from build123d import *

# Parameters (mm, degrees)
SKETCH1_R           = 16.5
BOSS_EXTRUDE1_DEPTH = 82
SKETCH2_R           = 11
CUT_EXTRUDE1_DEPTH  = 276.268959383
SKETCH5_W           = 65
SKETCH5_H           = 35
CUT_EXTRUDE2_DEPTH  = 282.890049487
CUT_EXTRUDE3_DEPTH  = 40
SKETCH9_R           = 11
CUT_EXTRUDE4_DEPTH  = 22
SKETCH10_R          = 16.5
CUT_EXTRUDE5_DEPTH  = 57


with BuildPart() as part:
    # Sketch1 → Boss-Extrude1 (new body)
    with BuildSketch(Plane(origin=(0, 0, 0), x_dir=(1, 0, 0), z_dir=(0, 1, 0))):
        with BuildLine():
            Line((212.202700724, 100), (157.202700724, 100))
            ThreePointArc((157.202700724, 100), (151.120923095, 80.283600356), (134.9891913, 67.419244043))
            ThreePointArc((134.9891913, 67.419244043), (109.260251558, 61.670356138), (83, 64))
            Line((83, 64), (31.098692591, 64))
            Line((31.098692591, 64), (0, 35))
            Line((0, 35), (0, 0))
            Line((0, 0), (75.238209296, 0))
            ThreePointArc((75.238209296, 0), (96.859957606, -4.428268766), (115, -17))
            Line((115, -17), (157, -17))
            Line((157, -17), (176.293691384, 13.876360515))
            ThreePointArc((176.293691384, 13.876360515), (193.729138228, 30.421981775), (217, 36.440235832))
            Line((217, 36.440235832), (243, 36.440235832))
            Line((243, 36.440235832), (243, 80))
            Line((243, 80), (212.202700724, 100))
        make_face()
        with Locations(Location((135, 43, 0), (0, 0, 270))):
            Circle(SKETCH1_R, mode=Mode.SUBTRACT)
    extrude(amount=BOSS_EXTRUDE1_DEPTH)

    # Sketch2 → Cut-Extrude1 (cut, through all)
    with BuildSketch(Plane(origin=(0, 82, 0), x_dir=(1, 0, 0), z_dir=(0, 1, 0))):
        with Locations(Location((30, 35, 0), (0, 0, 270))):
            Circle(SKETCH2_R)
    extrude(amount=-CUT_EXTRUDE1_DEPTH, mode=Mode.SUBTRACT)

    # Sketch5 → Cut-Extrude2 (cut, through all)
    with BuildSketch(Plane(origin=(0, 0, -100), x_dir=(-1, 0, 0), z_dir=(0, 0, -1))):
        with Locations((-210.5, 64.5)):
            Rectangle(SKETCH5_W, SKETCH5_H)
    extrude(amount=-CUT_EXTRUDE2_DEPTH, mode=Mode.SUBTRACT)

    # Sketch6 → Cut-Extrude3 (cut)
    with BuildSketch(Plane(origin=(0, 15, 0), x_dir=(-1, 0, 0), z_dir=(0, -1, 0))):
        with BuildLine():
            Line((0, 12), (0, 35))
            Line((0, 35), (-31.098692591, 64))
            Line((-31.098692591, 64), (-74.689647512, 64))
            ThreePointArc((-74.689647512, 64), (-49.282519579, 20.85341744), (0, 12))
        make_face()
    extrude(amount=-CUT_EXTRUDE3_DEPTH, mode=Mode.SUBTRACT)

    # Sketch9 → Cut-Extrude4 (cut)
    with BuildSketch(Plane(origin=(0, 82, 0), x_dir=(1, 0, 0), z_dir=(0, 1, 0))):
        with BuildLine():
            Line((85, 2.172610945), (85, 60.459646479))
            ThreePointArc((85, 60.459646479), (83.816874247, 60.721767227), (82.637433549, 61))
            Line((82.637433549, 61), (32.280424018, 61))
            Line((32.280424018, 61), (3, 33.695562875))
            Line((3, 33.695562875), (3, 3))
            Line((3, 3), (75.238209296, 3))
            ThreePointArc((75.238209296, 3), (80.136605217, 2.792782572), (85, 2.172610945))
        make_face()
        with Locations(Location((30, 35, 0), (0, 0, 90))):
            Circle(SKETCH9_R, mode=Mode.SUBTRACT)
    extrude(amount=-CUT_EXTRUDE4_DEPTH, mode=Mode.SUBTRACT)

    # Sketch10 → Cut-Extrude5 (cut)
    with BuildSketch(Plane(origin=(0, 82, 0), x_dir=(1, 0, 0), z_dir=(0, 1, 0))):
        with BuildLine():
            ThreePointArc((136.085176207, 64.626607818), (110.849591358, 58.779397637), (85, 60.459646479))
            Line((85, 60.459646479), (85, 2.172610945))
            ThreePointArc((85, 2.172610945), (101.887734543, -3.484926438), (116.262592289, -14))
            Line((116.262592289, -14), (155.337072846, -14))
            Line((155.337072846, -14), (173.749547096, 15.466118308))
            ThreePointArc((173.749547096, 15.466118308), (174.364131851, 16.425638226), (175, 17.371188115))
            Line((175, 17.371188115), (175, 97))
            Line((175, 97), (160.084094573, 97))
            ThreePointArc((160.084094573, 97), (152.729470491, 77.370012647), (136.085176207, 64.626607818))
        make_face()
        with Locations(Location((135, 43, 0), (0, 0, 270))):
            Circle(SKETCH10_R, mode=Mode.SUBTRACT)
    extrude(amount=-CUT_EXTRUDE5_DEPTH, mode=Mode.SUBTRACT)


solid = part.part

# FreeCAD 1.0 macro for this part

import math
import FreeCAD as App
import Part
import Sketcher
Q = App.Units.Quantity


def add_polygon(sketch, points):
    """Adds a closed chain of lines whose ends are joined by coincident constraints."""
    first, n = sketch.GeometryCount, len(points)
    for a, b in zip(points, points[1:] + points[:1]):
        sketch.addGeometry(Part.LineSegment(App.Vector(*a, 0), App.Vector(*b, 0)), False)
    for i in range(n):
        sketch.addConstraint(Sketcher.Constraint("Coincident", first + i, 2, first + (i + 1) % n, 1))

doc = App.newDocument("Part")
params = doc.addObject("Spreadsheet::Sheet", "Params")
for row, (alias, value) in enumerate([
    ("sketch1_diameter", "33 mm"),
    ("sketch1_radius", "35 mm"),
    ("sketch1_radius2", "55 mm"),
    ("sketch1_radius3", "48 mm"),
    ("sketch1_width", "55 mm"),
    ("pad1_length", "82 mm"),
    ("sketch2_diameter", "22 mm"),
    ("sketch3_width", "65 mm"),
    ("sketch3_height", "35 mm"),
    ("sketch4_radius", "60 mm"),
    ("sketch4_height", "23 mm"),
    ("pocket3_length", "40 mm"),
    ("sketch5_diameter", "22 mm"),
    ("sketch5_radius", "58 mm"),
    ("pocket4_length", "22 mm"),
    ("sketch6_diameter", "33 mm"),
    ("sketch6_radius", "58 mm"),
    ("sketch6_radius2", "51.000001 mm"),
    ("sketch6_radius3", "38 mm"),
    ("pocket5_length", "57 mm"),
], start=1):
    params.set(f"A{row}", alias)
    params.set(f"B{row}", "=" + value)
    params.setAlias(f"B{row}", alias)

body = doc.addObject("PartDesign::Body", "Body")

# Sketch on XZ plane
sketch1 = body.newObject("Sketcher::SketchObject", "Sketch")
sketch1.AttachmentSupport = (doc.getObject("XZ_Plane"), [""])
sketch1.MapMode = "FlatFace"
sketch1.addGeometry(Part.LineSegment(App.Vector(212, -100, 0), App.Vector(157, -100, 0)), False)
sketch1.addGeometry(Part.ArcOfCircle(Part.Circle(App.Vector(122, -100, 0), App.Vector(0, 0, 1), 35), math.radians(0), math.radians(69)), False)
sketch1.addGeometry(Part.ArcOfCircle(Part.Circle(App.Vector(104, -147, 0), App.Vector(0, 0, 1), 86), math.radians(69), math.radians(104)), False)
sketch1.addGeometry(Part.LineSegment(App.Vector(83, -64, 0), App.Vector(31, -64, 0)), False)
sketch1.addGeometry(Part.LineSegment(App.Vector(31, -64, 0), App.Vector(0, -35, 0)), False)
sketch1.addGeometry(Part.LineSegment(App.Vector(0, -35, 0), App.Vector(0, 0, 0)), False)
sketch1.addGeometry(Part.LineSegment(App.Vector(0, 0, 0), App.Vector(75, 0, 0)), False)
sketch1.addGeometry(Part.ArcOfCircle(Part.Circle(App.Vector(75, 55, 0), App.Vector(0, 0, 1), 55), math.radians(-90), math.radians(-44)), False)
sketch1.addGeometry(Part.LineSegment(App.Vector(115, 17, 0), App.Vector(157, 17, 0)), False)
sketch1.addGeometry(Part.LineSegment(App.Vector(157, 17, 0), App.Vector(176, -14, 0)), False)
sketch1.addGeometry(Part.ArcOfCircle(Part.Circle(App.Vector(217, 12, 0), App.Vector(0, 0, 1), 48), math.radians(-148), math.radians(-90)), False)
sketch1.addGeometry(Part.LineSegment(App.Vector(217, -36, 0), App.Vector(243, -36, 0)), False)
sketch1.addGeometry(Part.LineSegment(App.Vector(243, -36, 0), App.Vector(243, -80, 0)), False)
sketch1.addGeometry(Part.LineSegment(App.Vector(243, -80, 0), App.Vector(212, -100, 0)), False)
sketch1.addGeometry(Part.Circle(App.Vector(135, -43, 0), App.Vector(0, 0, 1), 16), False)
sketch1.addConstraint(Sketcher.Constraint("Coincident", 0, 2, 1, 1))
sketch1.addConstraint(Sketcher.Constraint("Tangent", 1, 2, 2, 1))
sketch1.addConstraint(Sketcher.Constraint("Coincident", 2, 2, 3, 1))
sketch1.addConstraint(Sketcher.Constraint("Coincident", 3, 2, 4, 1))
sketch1.addConstraint(Sketcher.Constraint("Coincident", 4, 2, 5, 1))
sketch1.addConstraint(Sketcher.Constraint("Coincident", 5, 2, 6, 1))
sketch1.addConstraint(Sketcher.Constraint("Tangent", 6, 2, 7, 1))
sketch1.addConstraint(Sketcher.Constraint("Coincident", 7, 2, 8, 1))
sketch1.addConstraint(Sketcher.Constraint("Coincident", 8, 2, 9, 1))
sketch1.addConstraint(Sketcher.Constraint("Tangent", 9, 2, 10, 1))
sketch1.addConstraint(Sketcher.Constraint("Tangent", 10, 2, 11, 1))
sketch1.addConstraint(Sketcher.Constraint("Coincident", 11, 2, 12, 1))
sketch1.addConstraint(Sketcher.Constraint("Coincident", 12, 2, 13, 1))
sketch1.addConstraint(Sketcher.Constraint("Coincident", 13, 2, 0, 1))
sketch1.addConstraint(Sketcher.Constraint("Horizontal", 0))
sketch1.addConstraint(Sketcher.Constraint("Horizontal", 3))
sketch1.addConstraint(Sketcher.Constraint("Vertical", 5))
sketch1.addConstraint(Sketcher.Constraint("Horizontal", 6))
sketch1.addConstraint(Sketcher.Constraint("Horizontal", 8))
sketch1.addConstraint(Sketcher.Constraint("Horizontal", 11))
sketch1.addConstraint(Sketcher.Constraint("Vertical", 12))
sketch1.addConstraint(Sketcher.Constraint("Coincident", 5, 2, -1, 1))
sketch1.addConstraint(Sketcher.Constraint("Horizontal", 1, 3, 0, 2))
sketch1.addConstraint(Sketcher.Constraint("Diameter", 14, 33.0))
sketch1.addConstraint(Sketcher.Constraint("Radius", 1, 35.0))
sketch1.addConstraint(Sketcher.Constraint("Radius", 7, 55.0))
sketch1.addConstraint(Sketcher.Constraint("Radius", 10, 48.0))
sketch1.addConstraint(Sketcher.Constraint("DistanceX", 0, 2, 0, 1, 55.0))
sketch1.addConstraint(Sketcher.Constraint("DistanceX", 8, 1, 8, 2, 42.0))
sketch1.addConstraint(Sketcher.Constraint("DistanceX", 11, 1, 11, 2, 26.0))
sketch1.addConstraint(Sketcher.Constraint("DistanceY", 5, 1, 5, 2, 35.0))
sketch1.addConstraint(Sketcher.Constraint("Angle", 4, Q("137 deg")))
sketch1.addConstraint(Sketcher.Constraint("Angle", 9, Q("-58 deg")))
sketch1.addConstraint(Sketcher.Constraint("Angle", 13, Q("-147 deg")))
sketch1.addConstraint(Sketcher.Constraint("DistanceY", 1, 3, -1, 1, 100.0))
sketch1.addConstraint(Sketcher.Constraint("DistanceX", -1, 1, 10, 3, 217.0))
sketch1.addConstraint(Sketcher.Constraint("DistanceX", -1, 1, 14, 3, 135.0))
sketch1.addConstraint(Sketcher.Constraint("DistanceY", 14, 3, -1, 1, 43.0))
sketch1.addConstraint(Sketcher.Constraint("DistanceX", -1, 1, 2, 2, 83.0))
sketch1.addConstraint(Sketcher.Constraint("DistanceY", 2, 2, -1, 1, 64.0))
sketch1.addConstraint(Sketcher.Constraint("DistanceX", -1, 1, 7, 2, 115.0))
sketch1.addConstraint(Sketcher.Constraint("DistanceY", -1, 1, 7, 2, 17.0))
sketch1.addConstraint(Sketcher.Constraint("DistanceY", 12, 2, -1, 1, 80.0))
sketch1.addConstraint(Sketcher.Constraint("Radius", 2, 85.848489))
sketch1.setExpression("Constraints[23]", "Params.sketch1_diameter")
sketch1.setExpression("Constraints[24]", "Params.sketch1_radius")
sketch1.setExpression("Constraints[25]", "Params.sketch1_radius2")
sketch1.setExpression("Constraints[26]", "Params.sketch1_radius3")
sketch1.setExpression("Constraints[27]", "Params.sketch1_width")
pad1 = body.newObject("PartDesign::Pad", "Pad")
pad1.Profile = sketch1
pad1.setExpression("Length", "Params.pad1_length")
pad1.Reversed = True

# Sketch on XZ plane
sketch2 = body.newObject("Sketcher::SketchObject", "Sketch001")
sketch2.AttachmentSupport = (doc.getObject("XZ_Plane"), [""])
sketch2.MapMode = "FlatFace"
sketch2.AttachmentOffset = App.Placement(App.Vector(0, 0, -82), App.Rotation())
sketch2.addGeometry(Part.Circle(App.Vector(30, -35, 0), App.Vector(0, 0, 1), 11), False)
sketch2.addConstraint(Sketcher.Constraint("Diameter", 0, 22.0))
sketch2.addConstraint(Sketcher.Constraint("DistanceX", -1, 1, 0, 3, 30.0))
sketch2.addConstraint(Sketcher.Constraint("DistanceY", 0, 3, -1, 1, 35.0))
sketch2.setExpression("Constraints[0]", "Params.sketch2_diameter")
pocket1 = body.newObject("PartDesign::Pocket", "Pocket")
pocket1.Profile = sketch2
pocket1.Type = "ThroughAll"
pocket1.Reversed = True

# Sketch on XY plane
sketch3 = body.newObject("Sketcher::SketchObject", "Sketch002")
sketch3.AttachmentSupport = (doc.getObject("XY_Plane"), [""])
sketch3.MapMode = "FlatFace"
sketch3.AttachmentOffset = App.Placement(App.Vector(0, 0, -100), App.Rotation())
add_polygon(sketch3, [(243, 82), (243, 47), (178, 47), (178, 82)])  # lines 0-3
sketch3.addConstraint(Sketcher.Constraint("Vertical", 0))
sketch3.addConstraint(Sketcher.Constraint("Horizontal", 1))
sketch3.addConstraint(Sketcher.Constraint("Vertical", 2))
sketch3.addConstraint(Sketcher.Constraint("Horizontal", 3))
sketch3.addConstraint(Sketcher.Constraint("DistanceX", 1, 2, 1, 1, 65.0))
sketch3.addConstraint(Sketcher.Constraint("DistanceY", 0, 2, 0, 1, 35.0))
sketch3.addConstraint(Sketcher.Constraint("DistanceX", -1, 1, 0, 2, 243.0))
sketch3.addConstraint(Sketcher.Constraint("DistanceY", -1, 1, 0, 2, 47.0))
sketch3.setExpression("Constraints[8]", "Params.sketch3_width")
sketch3.setExpression("Constraints[9]", "Params.sketch3_height")
pocket2 = body.newObject("PartDesign::Pocket", "Pocket001")
pocket2.Profile = sketch3
pocket2.Type = "ThroughAll"
pocket2.Reversed = True

# Sketch on XZ plane
sketch4 = body.newObject("Sketcher::SketchObject", "Sketch003")
sketch4.AttachmentSupport = (doc.getObject("XZ_Plane"), [""])
sketch4.MapMode = "FlatFace"
sketch4.AttachmentOffset = App.Placement(App.Vector(0, 0, -15), App.Rotation())
sketch4.addGeometry(Part.LineSegment(App.Vector(0, -12, 0), App.Vector(0, -35, 0)), False)
sketch4.addGeometry(Part.LineSegment(App.Vector(0, -35, 0), App.Vector(31, -64, 0)), False)
sketch4.addGeometry(Part.LineSegment(App.Vector(31, -64, 0), App.Vector(75, -64, 0)), False)
sketch4.addGeometry(Part.ArcOfCircle(Part.Circle(App.Vector(15, -70, 0), App.Vector(0, 0, 1), 60), math.radians(6), math.radians(104)), False)
sketch4.addConstraint(Sketcher.Constraint("Coincident", 0, 2, 1, 1))
sketch4.addConstraint(Sketcher.Constraint("Coincident", 1, 2, 2, 1))
sketch4.addConstraint(Sketcher.Constraint("Coincident", 2, 2, 3, 1))
sketch4.addConstraint(Sketcher.Constraint("Coincident", 3, 2, 0, 1))
sketch4.addConstraint(Sketcher.Constraint("Vertical", 0))
sketch4.addConstraint(Sketcher.Constraint("Horizontal", 2))
sketch4.addConstraint(Sketcher.Constraint("PointOnObject", 0, 2, -2))
sketch4.addConstraint(Sketcher.Constraint("Radius", 3, 60.0))
sketch4.addConstraint(Sketcher.Constraint("DistanceY", 0, 2, 0, 1, 23.0))
sketch4.addConstraint(Sketcher.Constraint("Angle", 1, Q("-43 deg")))
sketch4.addConstraint(Sketcher.Constraint("DistanceX", -1, 1, 3, 3, 15.0))
sketch4.addConstraint(Sketcher.Constraint("DistanceY", 0, 2, -1, 1, 35.0))
sketch4.addConstraint(Sketcher.Constraint("DistanceY", 1, 2, -1, 1, 64.0))
sketch4.setExpression("Constraints[7]", "Params.sketch4_radius")
sketch4.setExpression("Constraints[8]", "Params.sketch4_height")
pocket3 = body.newObject("PartDesign::Pocket", "Pocket002")
pocket3.Profile = sketch4
pocket3.setExpression("Length", "Params.pocket3_length")

# Sketch on XZ plane
sketch5 = body.newObject("Sketcher::SketchObject", "Sketch004")
sketch5.AttachmentSupport = (doc.getObject("XZ_Plane"), [""])
sketch5.MapMode = "FlatFace"
sketch5.AttachmentOffset = App.Placement(App.Vector(0, 0, -82), App.Rotation())
sketch5.addGeometry(Part.LineSegment(App.Vector(85, -2.2, 0), App.Vector(85, -60.5, 0)), False)
sketch5.addGeometry(Part.ArcOfCircle(Part.Circle(App.Vector(103.6, -147.3, 0), App.Vector(0, 0, 1), 88.8), math.radians(102.1), math.radians(103.66)), False)
sketch5.addGeometry(Part.LineSegment(App.Vector(82.6, -61, 0), App.Vector(32.3, -61, 0)), False)
sketch5.addGeometry(Part.LineSegment(App.Vector(32.3, -61, 0), App.Vector(3, -33.7, 0)), False)
sketch5.addGeometry(Part.LineSegment(App.Vector(3, -33.7, 0), App.Vector(3, -3, 0)), False)
sketch5.addGeometry(Part.LineSegment(App.Vector(3, -3, 0), App.Vector(75.2, -3, 0)), False)
sketch5.addGeometry(Part.ArcOfCircle(Part.Circle(App.Vector(75.2, 55, 0), App.Vector(0, 0, 1), 58), math.radians(-90), math.radians(-80.31)), False)
sketch5.addGeometry(Part.Circle(App.Vector(30, -35, 0), App.Vector(0, 0, 1), 11), False)
sketch5.addConstraint(Sketcher.Constraint("Coincident", 0, 2, 1, 1))
sketch5.addConstraint(Sketcher.Constraint("Coincident", 1, 2, 2, 1))
sketch5.addConstraint(Sketcher.Constraint("Coincident", 2, 2, 3, 1))
sketch5.addConstraint(Sketcher.Constraint("Coincident", 3, 2, 4, 1))
sketch5.addConstraint(Sketcher.Constraint("Coincident", 4, 2, 5, 1))
sketch5.addConstraint(Sketcher.Constraint("Tangent", 5, 2, 6, 1))
sketch5.addConstraint(Sketcher.Constraint("Coincident", 6, 2, 0, 1))
sketch5.addConstraint(Sketcher.Constraint("Vertical", 0))
sketch5.addConstraint(Sketcher.Constraint("Horizontal", 2))
sketch5.addConstraint(Sketcher.Constraint("Vertical", 4))
sketch5.addConstraint(Sketcher.Constraint("Horizontal", 5))
sketch5.addConstraint(Sketcher.Constraint("Diameter", 7, 22.0))
sketch5.addConstraint(Sketcher.Constraint("Radius", 6, 58.0))
sketch5.addConstraint(Sketcher.Constraint("Angle", 3, Q("137 deg")))
sketch5.addConstraint(Sketcher.Constraint("DistanceY", -1, 1, 6, 3, 55.0))
sketch5.addConstraint(Sketcher.Constraint("DistanceX", -1, 1, 7, 3, 30.0))
sketch5.addConstraint(Sketcher.Constraint("DistanceY", 7, 3, -1, 1, 35.0))
sketch5.addConstraint(Sketcher.Constraint("DistanceX", -1, 1, 0, 2, 85.0))
sketch5.addConstraint(Sketcher.Constraint("DistanceY", 1, 2, -1, 1, 61.0))
sketch5.addConstraint(Sketcher.Constraint("DistanceX", -1, 1, 3, 2, 3.0))
sketch5.addConstraint(Sketcher.Constraint("Radius", 1, 88.848495))
sketch5.addConstraint(Sketcher.Constraint("DistanceX", 2, 2, 2, 1, 50.35701))
sketch5.addConstraint(Sketcher.Constraint("DistanceX", 5, 1, 5, 2, 72.238209))
sketch5.addConstraint(Sketcher.Constraint("DistanceX", 6, 3, 1, 3, 28.388101))
sketch5.addConstraint(Sketcher.Constraint("DistanceY", 0, 2, 0, 1, 58.287036))
sketch5.setExpression("Constraints[11]", "Params.sketch5_diameter")
sketch5.setExpression("Constraints[12]", "Params.sketch5_radius")
pocket4 = body.newObject("PartDesign::Pocket", "Pocket003")
pocket4.Profile = sketch5
pocket4.setExpression("Length", "Params.pocket4_length")
pocket4.Reversed = True

# Sketch on XZ plane
sketch6 = body.newObject("Sketcher::SketchObject", "Sketch005")
sketch6.AttachmentSupport = (doc.getObject("XZ_Plane"), [""])
sketch6.MapMode = "FlatFace"
sketch6.AttachmentOffset = App.Placement(App.Vector(0, 0, -82), App.Rotation())
sketch6.addGeometry(Part.ArcOfCircle(Part.Circle(App.Vector(103.6, -147.3, 0), App.Vector(0, 0, 1), 88.8), math.radians(69), math.radians(102)), False)
sketch6.addGeometry(Part.LineSegment(App.Vector(85, -60.5, 0), App.Vector(85, -2.2, 0)), False)
sketch6.addGeometry(Part.ArcOfCircle(Part.Circle(App.Vector(75.2, 55, 0), App.Vector(0, 0, 1), 58), math.radians(-80), math.radians(-45)), False)
sketch6.addGeometry(Part.LineSegment(App.Vector(116.3, 14, 0), App.Vector(155.3, 14, 0)), False)
sketch6.addGeometry(Part.LineSegment(App.Vector(155.3, 14, 0), App.Vector(173.7, -15.5, 0)), False)
sketch6.addGeometry(Part.ArcOfCircle(Part.Circle(App.Vector(217, 11.6, 0), App.Vector(0, 0, 1), 51), math.radians(-148), math.radians(-145.44)), False)
sketch6.addGeometry(Part.LineSegment(App.Vector(175, -17.4, 0), App.Vector(175, -97, 0)), False)
sketch6.addGeometry(Part.LineSegment(App.Vector(175, -97, 0), App.Vector(160.1, -97, 0)), False)
sketch6.addGeometry(Part.ArcOfCircle(Part.Circle(App.Vector(122.2, -100, 0), App.Vector(0, 0, 1), 38), math.radians(5), math.radians(69)), False)
sketch6.addGeometry(Part.Circle(App.Vector(135, -43, 0), App.Vector(0, 0, 1), 16.5), False)
sketch6.addConstraint(Sketcher.Constraint("Coincident", 0, 2, 1, 1))
sketch6.addConstraint(Sketcher.Constraint("Coincident", 1, 2, 2, 1))
sketch6.addConstraint(Sketcher.Constraint("Coincident", 2, 2, 3, 1))
sketch6.addConstraint(Sketcher.Constraint("Coincident", 3, 2, 4, 1))
sketch6.addConstraint(Sketcher.Constraint("Tangent", 4, 2, 5, 1))
sketch6.addConstraint(Sketcher.Constraint("Coincident", 5, 2, 6, 1))
sketch6.addConstraint(Sketcher.Constraint("Coincident", 6, 2, 7, 1))
sketch6.addConstraint(Sketcher.Constraint("Coincident", 7, 2, 8, 1))
sketch6.addConstraint(Sketcher.Constraint("Tangent", 8, 2, 0, 1))
sketch6.addConstraint(Sketcher.Constraint("Vertical", 1))
sketch6.addConstraint(Sketcher.Constraint("Horizontal", 3))
sketch6.addConstraint(Sketcher.Constraint("Vertical", 6))
sketch6.addConstraint(Sketcher.Constraint("Horizontal", 7))
sketch6.addConstraint(Sketcher.Constraint("Diameter", 9, 33.0))
sketch6.addConstraint(Sketcher.Constraint("Radius", 2, 58.0))
sketch6.addConstraint(Sketcher.Constraint("Radius", 5, 51.000001))
sketch6.addConstraint(Sketcher.Constraint("Radius", 8, 38.0))
sketch6.addConstraint(Sketcher.Constraint("Angle", 4, Q("-58 deg")))
sketch6.addConstraint(Sketcher.Constraint("DistanceY", -1, 1, 2, 3, 55.0))
sketch6.addConstraint(Sketcher.Constraint("DistanceX", -1, 1, 5, 3, 217.000001))
sketch6.addConstraint(Sketcher.Constraint("DistanceY", 8, 3, -1, 1, 100.0))
sketch6.addConstraint(Sketcher.Constraint("DistanceX", -1, 1, 9, 3, 135.0))
sketch6.addConstraint(Sketcher.Constraint("DistanceY", 9, 3, -1, 1, 43.0))
sketch6.addConstraint(Sketcher.Constraint("DistanceX", -1, 1, 0, 2, 85.0))
sketch6.addConstraint(Sketcher.Constraint("DistanceY", -1, 1, 2, 2, 14.0))
sketch6.addConstraint(Sketcher.Constraint("DistanceX", -1, 1, 5, 2, 175.0))
sketch6.addConstraint(Sketcher.Constraint("DistanceY", 6, 2, -1, 1, 97.0))
sketch6.addConstraint(Sketcher.Constraint("Radius", 0, 88.848489))
sketch6.addConstraint(Sketcher.Constraint("DistanceX", 3, 1, 3, 2, 39.074481))
sketch6.addConstraint(Sketcher.Constraint("DistanceY", 6, 2, 6, 1, 79.628812))
sketch6.addConstraint(Sketcher.Constraint("DistanceX", -1, 1, 8, 3, 122.202701))
sketch6.addConstraint(Sketcher.Constraint("DistanceX", 2, 3, 0, 3, 28.388099))
sketch6.setExpression("Constraints[13]", "Params.sketch6_diameter")
sketch6.setExpression("Constraints[14]", "Params.sketch6_radius")
sketch6.setExpression("Constraints[15]", "Params.sketch6_radius2")
sketch6.setExpression("Constraints[16]", "Params.sketch6_radius3")
pocket5 = body.newObject("PartDesign::Pocket", "Pocket004")
pocket5.Profile = sketch6
pocket5.setExpression("Length", "Params.pocket5_length")
pocket5.Reversed = True

doc.recompute()
